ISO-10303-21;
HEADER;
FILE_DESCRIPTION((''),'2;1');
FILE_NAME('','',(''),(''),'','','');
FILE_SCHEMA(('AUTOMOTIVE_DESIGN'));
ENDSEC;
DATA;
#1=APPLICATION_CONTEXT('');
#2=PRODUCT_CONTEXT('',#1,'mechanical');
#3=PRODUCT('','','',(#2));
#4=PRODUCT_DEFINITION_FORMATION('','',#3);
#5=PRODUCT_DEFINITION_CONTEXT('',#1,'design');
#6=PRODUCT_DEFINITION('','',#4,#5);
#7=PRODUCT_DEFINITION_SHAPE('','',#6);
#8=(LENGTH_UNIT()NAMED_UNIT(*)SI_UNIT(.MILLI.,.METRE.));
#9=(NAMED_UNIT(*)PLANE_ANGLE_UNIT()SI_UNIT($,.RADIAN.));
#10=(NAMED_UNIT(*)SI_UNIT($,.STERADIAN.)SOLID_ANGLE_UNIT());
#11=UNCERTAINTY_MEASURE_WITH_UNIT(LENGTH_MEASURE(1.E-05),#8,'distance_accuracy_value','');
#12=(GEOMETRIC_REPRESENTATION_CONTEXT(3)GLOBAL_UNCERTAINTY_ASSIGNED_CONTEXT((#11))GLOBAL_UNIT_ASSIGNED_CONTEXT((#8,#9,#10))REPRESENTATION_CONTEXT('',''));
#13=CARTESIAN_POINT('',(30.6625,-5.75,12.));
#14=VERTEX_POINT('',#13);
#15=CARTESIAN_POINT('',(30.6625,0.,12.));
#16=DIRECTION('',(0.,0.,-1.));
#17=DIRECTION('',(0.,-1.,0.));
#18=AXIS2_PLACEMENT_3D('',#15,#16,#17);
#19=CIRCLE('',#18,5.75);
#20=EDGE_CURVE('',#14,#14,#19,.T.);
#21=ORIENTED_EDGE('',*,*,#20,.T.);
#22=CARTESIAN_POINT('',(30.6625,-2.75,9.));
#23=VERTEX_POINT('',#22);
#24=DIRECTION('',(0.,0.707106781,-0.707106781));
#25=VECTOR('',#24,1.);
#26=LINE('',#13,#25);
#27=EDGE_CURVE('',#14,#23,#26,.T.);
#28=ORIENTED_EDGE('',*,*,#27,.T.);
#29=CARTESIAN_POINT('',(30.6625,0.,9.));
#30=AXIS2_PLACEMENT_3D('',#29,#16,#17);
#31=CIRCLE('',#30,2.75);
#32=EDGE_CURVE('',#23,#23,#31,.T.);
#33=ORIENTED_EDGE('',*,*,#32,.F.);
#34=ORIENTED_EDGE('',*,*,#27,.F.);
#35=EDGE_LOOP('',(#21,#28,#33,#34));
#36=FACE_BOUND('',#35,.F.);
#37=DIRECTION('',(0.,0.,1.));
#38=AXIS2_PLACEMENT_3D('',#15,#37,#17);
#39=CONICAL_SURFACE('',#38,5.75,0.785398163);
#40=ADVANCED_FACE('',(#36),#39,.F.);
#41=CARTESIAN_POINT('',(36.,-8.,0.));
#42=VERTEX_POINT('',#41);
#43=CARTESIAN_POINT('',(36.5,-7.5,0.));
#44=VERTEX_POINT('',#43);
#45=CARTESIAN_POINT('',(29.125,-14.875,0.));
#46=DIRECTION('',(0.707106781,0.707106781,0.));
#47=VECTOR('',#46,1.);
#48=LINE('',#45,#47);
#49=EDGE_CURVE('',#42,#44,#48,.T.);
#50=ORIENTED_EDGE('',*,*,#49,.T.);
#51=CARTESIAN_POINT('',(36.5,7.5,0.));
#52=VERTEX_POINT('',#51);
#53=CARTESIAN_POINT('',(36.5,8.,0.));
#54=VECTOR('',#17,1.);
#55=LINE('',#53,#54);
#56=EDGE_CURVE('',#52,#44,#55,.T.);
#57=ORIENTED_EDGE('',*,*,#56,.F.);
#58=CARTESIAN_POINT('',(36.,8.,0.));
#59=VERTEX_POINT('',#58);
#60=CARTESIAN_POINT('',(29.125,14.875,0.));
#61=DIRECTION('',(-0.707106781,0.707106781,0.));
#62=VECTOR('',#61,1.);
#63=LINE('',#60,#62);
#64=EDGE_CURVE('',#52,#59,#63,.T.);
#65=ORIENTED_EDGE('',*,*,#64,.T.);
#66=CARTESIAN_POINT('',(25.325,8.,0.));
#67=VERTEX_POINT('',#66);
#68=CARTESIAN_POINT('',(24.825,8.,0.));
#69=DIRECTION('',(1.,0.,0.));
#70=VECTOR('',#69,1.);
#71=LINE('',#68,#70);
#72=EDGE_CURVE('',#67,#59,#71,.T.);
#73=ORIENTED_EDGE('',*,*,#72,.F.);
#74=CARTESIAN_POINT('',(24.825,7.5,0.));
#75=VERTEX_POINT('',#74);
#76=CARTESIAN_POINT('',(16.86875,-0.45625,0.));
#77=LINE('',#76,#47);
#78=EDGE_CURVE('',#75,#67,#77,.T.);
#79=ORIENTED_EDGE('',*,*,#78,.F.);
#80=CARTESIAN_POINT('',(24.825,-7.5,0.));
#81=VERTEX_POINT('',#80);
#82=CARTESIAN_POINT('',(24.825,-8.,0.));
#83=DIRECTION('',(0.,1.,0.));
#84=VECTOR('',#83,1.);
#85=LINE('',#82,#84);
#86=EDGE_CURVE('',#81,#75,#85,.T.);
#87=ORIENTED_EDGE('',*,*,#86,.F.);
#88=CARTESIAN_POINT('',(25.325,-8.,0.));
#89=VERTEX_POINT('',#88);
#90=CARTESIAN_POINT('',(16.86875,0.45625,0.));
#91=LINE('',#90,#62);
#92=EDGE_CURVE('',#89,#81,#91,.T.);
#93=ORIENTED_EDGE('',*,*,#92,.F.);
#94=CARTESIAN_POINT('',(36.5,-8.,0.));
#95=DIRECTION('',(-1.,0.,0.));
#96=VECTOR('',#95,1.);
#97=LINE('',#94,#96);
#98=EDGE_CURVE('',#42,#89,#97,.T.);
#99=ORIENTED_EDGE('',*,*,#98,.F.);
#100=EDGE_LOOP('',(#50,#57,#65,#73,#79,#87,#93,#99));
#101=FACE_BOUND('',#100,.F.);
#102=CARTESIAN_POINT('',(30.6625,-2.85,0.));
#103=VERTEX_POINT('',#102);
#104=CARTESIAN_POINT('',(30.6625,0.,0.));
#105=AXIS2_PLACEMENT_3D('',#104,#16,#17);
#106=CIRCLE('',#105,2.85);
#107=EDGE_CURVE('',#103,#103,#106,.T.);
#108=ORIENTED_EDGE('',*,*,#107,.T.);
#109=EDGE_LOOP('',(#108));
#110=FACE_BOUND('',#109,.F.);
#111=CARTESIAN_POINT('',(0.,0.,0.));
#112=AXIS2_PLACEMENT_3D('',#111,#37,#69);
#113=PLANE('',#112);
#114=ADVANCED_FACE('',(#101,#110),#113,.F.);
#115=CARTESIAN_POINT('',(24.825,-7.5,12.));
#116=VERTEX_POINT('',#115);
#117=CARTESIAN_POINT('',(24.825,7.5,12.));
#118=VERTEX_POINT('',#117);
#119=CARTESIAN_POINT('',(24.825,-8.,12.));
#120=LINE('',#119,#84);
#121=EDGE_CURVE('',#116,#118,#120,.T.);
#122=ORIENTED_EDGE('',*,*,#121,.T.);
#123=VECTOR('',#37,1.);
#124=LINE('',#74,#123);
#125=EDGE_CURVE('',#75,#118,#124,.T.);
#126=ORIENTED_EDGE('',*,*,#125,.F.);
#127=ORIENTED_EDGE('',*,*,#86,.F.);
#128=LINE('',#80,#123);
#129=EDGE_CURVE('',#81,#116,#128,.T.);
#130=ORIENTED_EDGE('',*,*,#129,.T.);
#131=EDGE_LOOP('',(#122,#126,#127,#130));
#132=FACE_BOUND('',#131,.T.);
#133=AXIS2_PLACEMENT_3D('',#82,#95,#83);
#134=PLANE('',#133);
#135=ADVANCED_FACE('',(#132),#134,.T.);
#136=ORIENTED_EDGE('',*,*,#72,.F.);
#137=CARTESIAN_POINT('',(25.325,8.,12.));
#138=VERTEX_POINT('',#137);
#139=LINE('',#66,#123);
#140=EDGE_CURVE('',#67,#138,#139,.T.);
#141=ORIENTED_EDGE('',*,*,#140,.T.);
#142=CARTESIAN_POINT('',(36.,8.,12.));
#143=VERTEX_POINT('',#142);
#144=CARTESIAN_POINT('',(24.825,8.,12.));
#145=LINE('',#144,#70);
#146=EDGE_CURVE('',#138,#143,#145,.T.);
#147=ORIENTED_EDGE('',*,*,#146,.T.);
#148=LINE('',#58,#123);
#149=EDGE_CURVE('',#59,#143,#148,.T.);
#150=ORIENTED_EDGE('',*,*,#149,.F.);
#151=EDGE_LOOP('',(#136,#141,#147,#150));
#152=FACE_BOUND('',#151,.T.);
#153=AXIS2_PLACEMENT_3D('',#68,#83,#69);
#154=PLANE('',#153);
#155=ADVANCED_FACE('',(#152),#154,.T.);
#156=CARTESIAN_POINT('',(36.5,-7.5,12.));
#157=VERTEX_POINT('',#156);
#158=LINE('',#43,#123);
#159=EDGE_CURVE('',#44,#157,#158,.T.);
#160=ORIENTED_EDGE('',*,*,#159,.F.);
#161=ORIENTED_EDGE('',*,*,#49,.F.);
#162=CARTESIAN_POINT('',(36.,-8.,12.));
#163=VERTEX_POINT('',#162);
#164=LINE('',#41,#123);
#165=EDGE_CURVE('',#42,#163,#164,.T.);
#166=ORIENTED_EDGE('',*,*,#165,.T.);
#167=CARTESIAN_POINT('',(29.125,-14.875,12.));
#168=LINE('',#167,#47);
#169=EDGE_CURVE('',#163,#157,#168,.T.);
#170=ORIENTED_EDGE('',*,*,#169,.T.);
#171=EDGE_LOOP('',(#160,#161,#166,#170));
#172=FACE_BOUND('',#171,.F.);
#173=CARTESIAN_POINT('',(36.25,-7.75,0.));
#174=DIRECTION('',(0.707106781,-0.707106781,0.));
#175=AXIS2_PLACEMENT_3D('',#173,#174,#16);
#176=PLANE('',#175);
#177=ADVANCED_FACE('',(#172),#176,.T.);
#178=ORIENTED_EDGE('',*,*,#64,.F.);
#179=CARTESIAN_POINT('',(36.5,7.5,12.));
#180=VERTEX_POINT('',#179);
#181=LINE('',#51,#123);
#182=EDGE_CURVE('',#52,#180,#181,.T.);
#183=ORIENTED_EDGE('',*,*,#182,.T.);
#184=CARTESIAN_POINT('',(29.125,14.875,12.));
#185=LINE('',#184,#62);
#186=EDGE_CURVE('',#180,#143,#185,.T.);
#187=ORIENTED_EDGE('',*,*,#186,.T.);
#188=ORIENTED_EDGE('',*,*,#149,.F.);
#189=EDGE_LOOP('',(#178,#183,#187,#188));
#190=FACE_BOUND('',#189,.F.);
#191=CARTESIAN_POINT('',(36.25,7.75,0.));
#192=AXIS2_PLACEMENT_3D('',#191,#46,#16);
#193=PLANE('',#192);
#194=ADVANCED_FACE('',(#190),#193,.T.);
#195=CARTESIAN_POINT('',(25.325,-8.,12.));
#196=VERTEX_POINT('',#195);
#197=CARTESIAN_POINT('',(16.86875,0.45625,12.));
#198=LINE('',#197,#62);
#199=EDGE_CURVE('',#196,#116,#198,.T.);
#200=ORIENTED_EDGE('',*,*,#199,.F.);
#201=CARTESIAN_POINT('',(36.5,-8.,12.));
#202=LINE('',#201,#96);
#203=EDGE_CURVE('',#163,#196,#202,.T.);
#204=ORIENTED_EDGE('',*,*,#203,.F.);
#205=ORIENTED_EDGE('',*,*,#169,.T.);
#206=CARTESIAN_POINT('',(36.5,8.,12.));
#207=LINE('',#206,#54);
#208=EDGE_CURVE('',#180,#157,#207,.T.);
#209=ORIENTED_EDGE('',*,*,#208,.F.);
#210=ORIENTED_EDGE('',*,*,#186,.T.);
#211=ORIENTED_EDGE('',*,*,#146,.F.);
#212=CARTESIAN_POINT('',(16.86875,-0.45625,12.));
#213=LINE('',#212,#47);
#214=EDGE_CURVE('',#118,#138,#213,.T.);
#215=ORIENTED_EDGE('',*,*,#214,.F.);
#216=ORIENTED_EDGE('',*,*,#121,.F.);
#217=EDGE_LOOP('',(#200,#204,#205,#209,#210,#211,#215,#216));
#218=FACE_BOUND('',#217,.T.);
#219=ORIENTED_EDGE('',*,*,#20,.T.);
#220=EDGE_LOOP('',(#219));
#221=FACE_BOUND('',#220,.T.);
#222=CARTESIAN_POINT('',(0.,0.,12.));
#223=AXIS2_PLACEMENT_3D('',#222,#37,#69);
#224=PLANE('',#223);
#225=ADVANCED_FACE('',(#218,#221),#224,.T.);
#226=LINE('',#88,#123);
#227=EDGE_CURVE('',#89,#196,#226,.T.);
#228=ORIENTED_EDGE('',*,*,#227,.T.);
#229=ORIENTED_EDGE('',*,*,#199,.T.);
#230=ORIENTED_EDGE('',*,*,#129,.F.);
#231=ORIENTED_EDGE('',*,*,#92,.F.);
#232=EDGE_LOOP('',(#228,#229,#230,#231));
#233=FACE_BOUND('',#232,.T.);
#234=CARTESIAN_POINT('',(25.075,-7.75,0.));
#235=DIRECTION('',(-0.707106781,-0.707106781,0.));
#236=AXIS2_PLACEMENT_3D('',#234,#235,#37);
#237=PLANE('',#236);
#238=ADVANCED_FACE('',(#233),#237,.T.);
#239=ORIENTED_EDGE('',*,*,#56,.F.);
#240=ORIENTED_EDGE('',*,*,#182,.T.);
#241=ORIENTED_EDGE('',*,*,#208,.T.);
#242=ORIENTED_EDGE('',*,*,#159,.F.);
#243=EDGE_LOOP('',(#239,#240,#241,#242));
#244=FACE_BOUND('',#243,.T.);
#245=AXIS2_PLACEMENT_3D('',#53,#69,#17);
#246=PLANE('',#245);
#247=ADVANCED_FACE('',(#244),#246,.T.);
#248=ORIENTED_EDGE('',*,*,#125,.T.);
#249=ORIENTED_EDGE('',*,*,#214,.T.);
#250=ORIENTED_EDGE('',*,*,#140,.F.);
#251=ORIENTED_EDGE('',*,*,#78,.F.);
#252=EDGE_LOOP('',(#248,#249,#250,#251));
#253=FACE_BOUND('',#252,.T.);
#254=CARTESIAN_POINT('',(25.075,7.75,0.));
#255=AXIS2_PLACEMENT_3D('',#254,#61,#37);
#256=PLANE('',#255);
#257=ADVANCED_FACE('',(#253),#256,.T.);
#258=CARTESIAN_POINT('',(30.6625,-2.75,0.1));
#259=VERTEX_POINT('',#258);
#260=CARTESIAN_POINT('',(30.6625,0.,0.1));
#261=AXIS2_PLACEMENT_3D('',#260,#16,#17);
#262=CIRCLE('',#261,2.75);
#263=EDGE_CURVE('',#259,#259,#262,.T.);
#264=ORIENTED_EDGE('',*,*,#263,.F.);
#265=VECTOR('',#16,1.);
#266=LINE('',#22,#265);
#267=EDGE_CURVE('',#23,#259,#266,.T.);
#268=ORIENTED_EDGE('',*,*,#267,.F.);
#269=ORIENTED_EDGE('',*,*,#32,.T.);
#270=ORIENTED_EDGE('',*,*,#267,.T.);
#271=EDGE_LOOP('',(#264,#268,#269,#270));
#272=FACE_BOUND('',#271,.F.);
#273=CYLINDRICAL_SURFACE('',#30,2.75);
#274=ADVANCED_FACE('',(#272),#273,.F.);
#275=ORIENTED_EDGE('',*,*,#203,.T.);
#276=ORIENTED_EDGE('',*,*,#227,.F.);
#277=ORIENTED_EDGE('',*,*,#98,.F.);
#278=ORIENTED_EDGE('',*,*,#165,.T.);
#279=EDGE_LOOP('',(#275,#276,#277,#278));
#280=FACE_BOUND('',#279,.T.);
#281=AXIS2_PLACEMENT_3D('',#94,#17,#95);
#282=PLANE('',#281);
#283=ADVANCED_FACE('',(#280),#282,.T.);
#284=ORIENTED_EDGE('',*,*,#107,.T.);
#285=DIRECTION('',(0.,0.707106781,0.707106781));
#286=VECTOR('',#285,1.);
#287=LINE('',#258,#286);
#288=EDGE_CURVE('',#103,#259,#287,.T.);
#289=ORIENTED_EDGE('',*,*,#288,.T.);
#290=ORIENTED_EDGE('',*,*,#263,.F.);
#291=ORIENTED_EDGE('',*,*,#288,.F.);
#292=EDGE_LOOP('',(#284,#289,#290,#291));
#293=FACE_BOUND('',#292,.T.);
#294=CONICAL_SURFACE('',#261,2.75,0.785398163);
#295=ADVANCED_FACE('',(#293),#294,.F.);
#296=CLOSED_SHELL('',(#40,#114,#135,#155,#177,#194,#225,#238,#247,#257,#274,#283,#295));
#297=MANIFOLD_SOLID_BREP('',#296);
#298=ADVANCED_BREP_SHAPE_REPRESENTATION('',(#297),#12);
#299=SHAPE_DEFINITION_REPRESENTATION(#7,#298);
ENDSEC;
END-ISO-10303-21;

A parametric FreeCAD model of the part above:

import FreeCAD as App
import Part
import Sketcher
Q = App.Units.Quantity


def edges_at(feature, points):
    """Names of the edges that pass closest to the given points."""
    edges = feature.Shape.Edges
    near = lambda p: min(range(len(edges)), key=lambda i: edges[i].distToShape(Part.Vertex(*p))[0])
    return sorted({f"Edge{near(p) + 1}" for p in points})

doc = App.newDocument("Part")
body = doc.addObject("PartDesign::Body", "Body")

sketch1 = doc.addObject("Sketcher::SketchObject", "Sketch")
body.addObject(sketch1)
sketch1.AttachmentSupport = (doc.XY_Plane, [""])
sketch1.MapMode = "FlatFace"
sketch1.addGeometry([
    Part.LineSegment(App.Vector(25, -8, 0), App.Vector(36, -8, 0)),
    Part.LineSegment(App.Vector(36, -8, 0), App.Vector(36, 8, 0)),
    Part.LineSegment(App.Vector(36, 8, 0), App.Vector(25, 8, 0)),
    Part.LineSegment(App.Vector(25, 8, 0), App.Vector(25, -8, 0)),
], False)
sketch1.addConstraint([
    Sketcher.Constraint("Coincident", 0, 2, 1, 1),
    Sketcher.Constraint("Coincident", 1, 2, 2, 1),
    Sketcher.Constraint("Coincident", 2, 2, 3, 1),
    Sketcher.Constraint("Coincident", 3, 2, 0, 1),
    Sketcher.Constraint("Horizontal", 0),
    Sketcher.Constraint("Vertical", 1),
    Sketcher.Constraint("Horizontal", 2),
    Sketcher.Constraint("Vertical", 3),
    Sketcher.Constraint("DistanceY", 1, 1, 1, 2, Q("16 mm")),
    Sketcher.Constraint("DistanceX", 0, 1, 0, 2, Q("11.675 mm")),
    Sketcher.Constraint("DistanceY", 0, 2, -1, 1, Q("8 mm")),
    Sketcher.Constraint("DistanceX", -1, 1, 0, 2, Q("36.5 mm")),
])
pad1 = doc.addObject("PartDesign::Pad", "Pad")
body.addObject(pad1)
pad1.Profile = sketch1
pad1.Length = 12

sketch2 = doc.addObject("Sketcher::SketchObject", "Sketch001")
body.addObject(sketch2)
sketch2.AttachmentSupport = (doc.XY_Plane, [""])
sketch2.MapMode = "FlatFace"
sketch2.AttachmentOffset = App.Placement(App.Vector(0, 0, 12), App.Rotation())
sketch2.addGeometry(Part.Circle(App.Vector(30.7, 0, 0), App.Vector(0, 0, 1), 2.8), False)
sketch2.addConstraint([
    Sketcher.Constraint("PointOnObject", 0, 3, -1),
    Sketcher.Constraint("Diameter", 0, Q("5.5 mm")),
    Sketcher.Constraint("DistanceX", -1, 1, 0, 3, Q("30.6625 mm")),
])
doc.recompute()
hole = doc.addObject("PartDesign::Hole", "Hole")
body.addObject(hole)
hole.Profile = sketch2
hole.ThreadType = "None"
hole.Diameter = 5.5
hole.DepthType = "ThroughAll"
hole.HoleCutType = "Countersink"
hole.HoleCutDiameter = 11.5
hole.HoleCutCountersinkAngle = 90
doc.recompute()

chamfer = doc.addObject("PartDesign::Chamfer", "Chamfer")
body.addObject(chamfer)
chamfer.Base = (hole, edges_at(hole, [
    (24.825, -8, 6),
    (24.825, 8, 6),
    (36.5, 8, 6),
    (36.5, -8, 6),
]))
chamfer.Size = 0.5
doc.recompute()

chamfer2 = doc.addObject("PartDesign::Chamfer", "Chamfer001")
body.addObject(chamfer2)
chamfer2.Base = (chamfer, edges_at(chamfer, [(30.663, 2.75, 0)]))
chamfer2.Size = 0.1

doc.recompute()
